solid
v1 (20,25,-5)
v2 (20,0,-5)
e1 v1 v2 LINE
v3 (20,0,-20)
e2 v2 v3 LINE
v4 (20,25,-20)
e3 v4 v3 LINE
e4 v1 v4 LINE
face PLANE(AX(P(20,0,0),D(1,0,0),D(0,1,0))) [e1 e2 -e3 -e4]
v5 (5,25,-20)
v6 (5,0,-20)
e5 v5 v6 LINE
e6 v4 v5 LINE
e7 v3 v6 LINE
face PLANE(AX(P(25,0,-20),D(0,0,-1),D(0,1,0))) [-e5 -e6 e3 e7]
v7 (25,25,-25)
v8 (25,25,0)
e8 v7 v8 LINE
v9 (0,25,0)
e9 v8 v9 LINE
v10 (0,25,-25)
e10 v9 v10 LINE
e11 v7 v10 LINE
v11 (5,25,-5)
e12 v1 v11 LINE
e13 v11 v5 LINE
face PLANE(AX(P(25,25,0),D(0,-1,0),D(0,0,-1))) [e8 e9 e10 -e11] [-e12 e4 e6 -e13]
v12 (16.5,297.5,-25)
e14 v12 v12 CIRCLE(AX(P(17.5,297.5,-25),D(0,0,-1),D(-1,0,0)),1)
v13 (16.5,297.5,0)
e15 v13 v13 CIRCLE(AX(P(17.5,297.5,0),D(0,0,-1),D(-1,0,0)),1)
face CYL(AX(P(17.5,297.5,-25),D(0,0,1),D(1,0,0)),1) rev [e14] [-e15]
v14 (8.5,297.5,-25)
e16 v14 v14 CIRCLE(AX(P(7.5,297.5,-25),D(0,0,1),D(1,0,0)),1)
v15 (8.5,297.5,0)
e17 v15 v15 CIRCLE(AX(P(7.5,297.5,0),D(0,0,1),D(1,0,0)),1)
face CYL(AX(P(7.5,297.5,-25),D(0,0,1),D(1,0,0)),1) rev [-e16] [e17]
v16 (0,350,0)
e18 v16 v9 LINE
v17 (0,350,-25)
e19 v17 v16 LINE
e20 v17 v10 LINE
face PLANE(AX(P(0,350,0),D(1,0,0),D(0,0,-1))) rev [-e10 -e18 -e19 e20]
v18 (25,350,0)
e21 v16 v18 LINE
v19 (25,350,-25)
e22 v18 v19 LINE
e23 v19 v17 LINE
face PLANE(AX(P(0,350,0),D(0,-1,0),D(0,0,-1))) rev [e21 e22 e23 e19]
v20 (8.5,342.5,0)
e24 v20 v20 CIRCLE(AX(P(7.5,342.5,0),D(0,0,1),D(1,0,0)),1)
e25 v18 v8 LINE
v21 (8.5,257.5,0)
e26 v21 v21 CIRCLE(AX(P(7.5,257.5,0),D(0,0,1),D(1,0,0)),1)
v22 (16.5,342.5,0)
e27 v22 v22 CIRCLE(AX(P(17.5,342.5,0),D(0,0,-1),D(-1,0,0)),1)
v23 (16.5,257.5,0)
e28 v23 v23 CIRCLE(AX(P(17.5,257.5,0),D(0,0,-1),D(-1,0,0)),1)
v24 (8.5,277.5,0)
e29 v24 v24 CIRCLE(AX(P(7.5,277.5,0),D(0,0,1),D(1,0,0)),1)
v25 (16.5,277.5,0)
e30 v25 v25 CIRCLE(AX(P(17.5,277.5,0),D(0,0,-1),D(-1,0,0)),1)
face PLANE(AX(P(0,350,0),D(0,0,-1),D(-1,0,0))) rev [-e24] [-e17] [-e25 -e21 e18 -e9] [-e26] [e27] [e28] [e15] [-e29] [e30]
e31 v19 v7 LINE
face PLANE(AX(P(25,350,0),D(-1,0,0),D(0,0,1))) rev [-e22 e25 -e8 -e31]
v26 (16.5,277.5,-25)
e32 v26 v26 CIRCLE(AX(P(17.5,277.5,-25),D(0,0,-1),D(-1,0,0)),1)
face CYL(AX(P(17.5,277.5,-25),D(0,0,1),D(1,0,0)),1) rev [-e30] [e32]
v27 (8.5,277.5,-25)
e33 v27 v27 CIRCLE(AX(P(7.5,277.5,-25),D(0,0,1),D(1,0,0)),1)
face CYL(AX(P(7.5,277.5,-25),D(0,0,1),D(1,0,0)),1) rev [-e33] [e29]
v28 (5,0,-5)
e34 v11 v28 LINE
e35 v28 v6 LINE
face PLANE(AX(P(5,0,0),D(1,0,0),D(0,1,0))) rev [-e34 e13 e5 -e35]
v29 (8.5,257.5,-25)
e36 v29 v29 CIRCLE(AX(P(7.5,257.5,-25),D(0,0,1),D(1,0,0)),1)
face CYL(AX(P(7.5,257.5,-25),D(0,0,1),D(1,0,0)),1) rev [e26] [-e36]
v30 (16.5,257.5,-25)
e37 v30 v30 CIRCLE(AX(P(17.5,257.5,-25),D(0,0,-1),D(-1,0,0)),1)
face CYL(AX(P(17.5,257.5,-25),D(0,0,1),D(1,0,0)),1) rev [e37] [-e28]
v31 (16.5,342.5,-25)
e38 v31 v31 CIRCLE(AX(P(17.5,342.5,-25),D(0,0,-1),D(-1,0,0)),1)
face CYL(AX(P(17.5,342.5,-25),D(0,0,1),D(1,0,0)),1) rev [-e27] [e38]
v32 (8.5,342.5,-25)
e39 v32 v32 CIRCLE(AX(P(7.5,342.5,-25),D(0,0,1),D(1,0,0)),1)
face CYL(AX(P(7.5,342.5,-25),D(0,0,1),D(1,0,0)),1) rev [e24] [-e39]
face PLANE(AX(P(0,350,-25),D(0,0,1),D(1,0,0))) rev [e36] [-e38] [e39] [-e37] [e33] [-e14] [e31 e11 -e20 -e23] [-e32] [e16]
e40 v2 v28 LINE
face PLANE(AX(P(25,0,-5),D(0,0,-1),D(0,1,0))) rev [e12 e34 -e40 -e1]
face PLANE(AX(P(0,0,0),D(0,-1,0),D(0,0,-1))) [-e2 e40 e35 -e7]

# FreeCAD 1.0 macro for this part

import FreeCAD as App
import Part
import Sketcher
from FreeCAD import Vector
Q = App.Units.Quantity


def add_polygon(sketch, points):
    """Adds a closed chain of lines whose ends are joined by coincident constraints."""
    first, n = sketch.GeometryCount, len(points)
    for a, b in zip(points, points[1:] + points[:1]):
        sketch.addGeometry(Part.LineSegment(App.Vector(*a, 0), App.Vector(*b, 0)), False)
    for i in range(n):
        sketch.addConstraint(Sketcher.Constraint("Coincident", first + i, 2, first + (i + 1) % n, 1))

doc = App.newDocument("Part")
params = doc.addObject("Spreadsheet::Sheet", "Params")
for row, (alias, value) in enumerate([
    ("sketch1_width", "25 mm"),
    ("pad1_length", "350 mm"),
    ("sketch2_diameter", "2 mm"),
    ("sketch3_width", "25 mm"),
    ("sketch3_height", "5 mm"),
    ("sketch4_width", "5 mm"),
    ("sketch4_height", "25 mm"),
], start=1):
    params.set(f"A{row}", alias)
    params.set(f"B{row}", "=" + value)
    params.setAlias(f"B{row}", alias)

body = doc.addObject("PartDesign::Body", "Body")

# Sketch on XZ plane
sketch1 = doc.addObject("Sketcher::SketchObject", "Sketch")
body.addObject(sketch1)
sketch1.AttachmentSupport = (doc.XZ_Plane, [""])
sketch1.MapMode = "FlatFace"
add_polygon(sketch1, [(0, -25), (0, 0), (25, 0), (25, -25)])  # lines 0-3
sketch1.addConstraint([
    Sketcher.Constraint("Vertical", 0),
    Sketcher.Constraint("Horizontal", 1),
    Sketcher.Constraint("Vertical", 2),
    Sketcher.Constraint("Horizontal", 3),
    Sketcher.Constraint("Coincident", 0, 2, -1, 1),
    Sketcher.Constraint("Equal", 3, 0),
    Sketcher.Constraint("DistanceX", 1, 1, 1, 2, Q("25 mm")),
])
sketch1.setExpression("Constraints[10]", "Params.sketch1_width")
pad1 = doc.addObject("PartDesign::Pad", "Pad")
body.addObject(pad1)
pad1.Profile = sketch1
pad1.setExpression("Length", "Params.pad1_length")
pad1.Reversed = True

# Sketch on XY plane
sketch2 = doc.addObject("Sketcher::SketchObject", "Sketch001")
body.addObject(sketch2)
sketch2.AttachmentSupport = (doc.XY_Plane, [""])
sketch2.MapMode = "FlatFace"
sketch2.addGeometry([
    Part.Circle(Vector(7.5, 342.5, 0), Vector(0, 0, 1), 1),  # 0
    Part.Circle(Vector(7.5, 297.5, 0), Vector(0, 0, 1), 1),  # 1
    Part.Circle(Vector(7.5, 277.5, 0), Vector(0, 0, 1), 1),  # 2
    Part.Circle(Vector(7.5, 257.5, 0), Vector(0, 0, 1), 1),  # 3
    Part.Circle(Vector(17.5, 342.5, 0), Vector(0, 0, 1), 1),  # 4
    Part.Circle(Vector(17.5, 297.5, 0), Vector(0, 0, 1), 1),  # 5
    Part.Circle(Vector(17.5, 277.5, 0), Vector(0, 0, 1), 1),  # 6
    Part.Circle(Vector(17.5, 257.5, 0), Vector(0, 0, 1), 1),  # 7
], False)
sketch2.addConstraint([
    Sketcher.Constraint("Equal", 0, 1),
    Sketcher.Constraint("Equal", 1, 2),
    Sketcher.Constraint("Equal", 2, 3),
    Sketcher.Constraint("Equal", 3, 4),
    Sketcher.Constraint("Equal", 4, 5),
    Sketcher.Constraint("Equal", 5, 6),
    Sketcher.Constraint("Equal", 6, 7),
    Sketcher.Constraint("Horizontal", 0, 3, 4, 3),
    Sketcher.Constraint("Horizontal", 1, 3, 5, 3),
    Sketcher.Constraint("Horizontal", 2, 3, 6, 3),
    Sketcher.Constraint("Horizontal", 3, 3, 7, 3),
    Sketcher.Constraint("Vertical", 0, 3, 1, 3),
    Sketcher.Constraint("Vertical", 1, 3, 2, 3),
    Sketcher.Constraint("Vertical", 2, 3, 3, 3),
    Sketcher.Constraint("Vertical", 4, 3, 5, 3),
    Sketcher.Constraint("Vertical", 5, 3, 6, 3),
    Sketcher.Constraint("Vertical", 6, 3, 7, 3),
    Sketcher.Constraint("Diameter", 0, Q("2 mm")),
    Sketcher.Constraint("DistanceY", 1, 3, 0, 3, Q("45 mm")),
    Sketcher.Constraint("DistanceY", 2, 3, 1, 3, Q("20 mm")),
    Sketcher.Constraint("DistanceY", 3, 3, 2, 3, Q("20 mm")),
    Sketcher.Constraint("DistanceX", 0, 3, 4, 3, Q("10 mm")),
    Sketcher.Constraint("DistanceX", -1, 1, 0, 3, Q("7.5 mm")),
    Sketcher.Constraint("DistanceY", -1, 1, 0, 3, Q("342.5 mm")),
])
sketch2.setExpression("Constraints[17]", "Params.sketch2_diameter")
pocket1 = doc.addObject("PartDesign::Pocket", "Pocket")
body.addObject(pocket1)
pocket1.Profile = sketch2
pocket1.Type = "ThroughAll"

# Sketch on YZ plane
sketch3 = doc.addObject("Sketcher::SketchObject", "Sketch002")
body.addObject(sketch3)
sketch3.AttachmentSupport = (doc.YZ_Plane, [""])
sketch3.MapMode = "FlatFace"
add_polygon(sketch3, [(25, -25), (0, -25), (0, -20), (25, -20)])  # lines 0-3
add_polygon(sketch3, [(25, -5), (0, -5), (0, 0), (25, 0)])  # lines 4-7
sketch3.addConstraint([
    Sketcher.Constraint("Horizontal", 0),
    Sketcher.Constraint("Vertical", 1),
    Sketcher.Constraint("Horizontal", 2),
    Sketcher.Constraint("Vertical", 3),
    Sketcher.Constraint("Horizontal", 4),
    Sketcher.Constraint("Vertical", 5),
    Sketcher.Constraint("Horizontal", 6),
    Sketcher.Constraint("Vertical", 7),
    Sketcher.Constraint("Coincident", 5, 2, -1, 1),
    Sketcher.Constraint("PointOnObject", 0, 2, -2),
    Sketcher.Constraint("Vertical", 3, 2, 6, 2),
    Sketcher.Constraint("Equal", 3, 5),
    Sketcher.Constraint("DistanceX", 0, 2, 0, 1, Q("25 mm")),
    Sketcher.Constraint("DistanceY", 1, 1, 1, 2, Q("5 mm")),
    Sketcher.Constraint("DistanceY", 0, 2, -1, 1, Q("25 mm")),
])
sketch3.setExpression("Constraints[20]", "Params.sketch3_width")
sketch3.setExpression("Constraints[21]", "Params.sketch3_height")
pocket2 = doc.addObject("PartDesign::Pocket", "Pocket001")
body.addObject(pocket2)
pocket2.Profile = sketch3
pocket2.Type = "ThroughAll"
pocket2.Midplane = True

# Sketch on XY plane
sketch4 = doc.addObject("Sketcher::SketchObject", "Sketch003")
body.addObject(sketch4)
sketch4.AttachmentSupport = (doc.XY_Plane, [""])
sketch4.MapMode = "FlatFace"
sketch4.AttachmentOffset = App.Placement(Vector(0, 0, -20), App.Rotation())
add_polygon(sketch4, [(25, 25), (25, 0), (20, 0), (20, 25)])  # lines 0-3
add_polygon(sketch4, [(5, 25), (5, 0), (0, 0), (0, 25)])  # lines 4-7
sketch4.addConstraint([
    Sketcher.Constraint("Vertical", 0),
    Sketcher.Constraint("Horizontal", 1),
    Sketcher.Constraint("Vertical", 2),
    Sketcher.Constraint("Horizontal", 3),
    Sketcher.Constraint("Vertical", 4),
    Sketcher.Constraint("Horizontal", 5),
    Sketcher.Constraint("Vertical", 6),
    Sketcher.Constraint("Horizontal", 7),
    Sketcher.Constraint("Coincident", 5, 2, -1, 1),
    Sketcher.Constraint("PointOnObject", 0, 2, -1),
    Sketcher.Constraint("Horizontal", 3, 2, 6, 2),
    Sketcher.Constraint("Equal", 3, 5),
    Sketcher.Constraint("DistanceX", 1, 2, 1, 1, Q("5 mm")),
    Sketcher.Constraint("DistanceY", 0, 2, 0, 1, Q("25 mm")),
    Sketcher.Constraint("DistanceX", -1, 1, 0, 2, Q("25 mm")),
])
sketch4.setExpression("Constraints[20]", "Params.sketch4_width")
sketch4.setExpression("Constraints[21]", "Params.sketch4_height")
pocket3 = doc.addObject("PartDesign::Pocket", "Pocket002")
body.addObject(pocket3)
pocket3.Profile = sketch4
pocket3.Type = "ThroughAll"
pocket3.Reversed = True

doc.recompute()
